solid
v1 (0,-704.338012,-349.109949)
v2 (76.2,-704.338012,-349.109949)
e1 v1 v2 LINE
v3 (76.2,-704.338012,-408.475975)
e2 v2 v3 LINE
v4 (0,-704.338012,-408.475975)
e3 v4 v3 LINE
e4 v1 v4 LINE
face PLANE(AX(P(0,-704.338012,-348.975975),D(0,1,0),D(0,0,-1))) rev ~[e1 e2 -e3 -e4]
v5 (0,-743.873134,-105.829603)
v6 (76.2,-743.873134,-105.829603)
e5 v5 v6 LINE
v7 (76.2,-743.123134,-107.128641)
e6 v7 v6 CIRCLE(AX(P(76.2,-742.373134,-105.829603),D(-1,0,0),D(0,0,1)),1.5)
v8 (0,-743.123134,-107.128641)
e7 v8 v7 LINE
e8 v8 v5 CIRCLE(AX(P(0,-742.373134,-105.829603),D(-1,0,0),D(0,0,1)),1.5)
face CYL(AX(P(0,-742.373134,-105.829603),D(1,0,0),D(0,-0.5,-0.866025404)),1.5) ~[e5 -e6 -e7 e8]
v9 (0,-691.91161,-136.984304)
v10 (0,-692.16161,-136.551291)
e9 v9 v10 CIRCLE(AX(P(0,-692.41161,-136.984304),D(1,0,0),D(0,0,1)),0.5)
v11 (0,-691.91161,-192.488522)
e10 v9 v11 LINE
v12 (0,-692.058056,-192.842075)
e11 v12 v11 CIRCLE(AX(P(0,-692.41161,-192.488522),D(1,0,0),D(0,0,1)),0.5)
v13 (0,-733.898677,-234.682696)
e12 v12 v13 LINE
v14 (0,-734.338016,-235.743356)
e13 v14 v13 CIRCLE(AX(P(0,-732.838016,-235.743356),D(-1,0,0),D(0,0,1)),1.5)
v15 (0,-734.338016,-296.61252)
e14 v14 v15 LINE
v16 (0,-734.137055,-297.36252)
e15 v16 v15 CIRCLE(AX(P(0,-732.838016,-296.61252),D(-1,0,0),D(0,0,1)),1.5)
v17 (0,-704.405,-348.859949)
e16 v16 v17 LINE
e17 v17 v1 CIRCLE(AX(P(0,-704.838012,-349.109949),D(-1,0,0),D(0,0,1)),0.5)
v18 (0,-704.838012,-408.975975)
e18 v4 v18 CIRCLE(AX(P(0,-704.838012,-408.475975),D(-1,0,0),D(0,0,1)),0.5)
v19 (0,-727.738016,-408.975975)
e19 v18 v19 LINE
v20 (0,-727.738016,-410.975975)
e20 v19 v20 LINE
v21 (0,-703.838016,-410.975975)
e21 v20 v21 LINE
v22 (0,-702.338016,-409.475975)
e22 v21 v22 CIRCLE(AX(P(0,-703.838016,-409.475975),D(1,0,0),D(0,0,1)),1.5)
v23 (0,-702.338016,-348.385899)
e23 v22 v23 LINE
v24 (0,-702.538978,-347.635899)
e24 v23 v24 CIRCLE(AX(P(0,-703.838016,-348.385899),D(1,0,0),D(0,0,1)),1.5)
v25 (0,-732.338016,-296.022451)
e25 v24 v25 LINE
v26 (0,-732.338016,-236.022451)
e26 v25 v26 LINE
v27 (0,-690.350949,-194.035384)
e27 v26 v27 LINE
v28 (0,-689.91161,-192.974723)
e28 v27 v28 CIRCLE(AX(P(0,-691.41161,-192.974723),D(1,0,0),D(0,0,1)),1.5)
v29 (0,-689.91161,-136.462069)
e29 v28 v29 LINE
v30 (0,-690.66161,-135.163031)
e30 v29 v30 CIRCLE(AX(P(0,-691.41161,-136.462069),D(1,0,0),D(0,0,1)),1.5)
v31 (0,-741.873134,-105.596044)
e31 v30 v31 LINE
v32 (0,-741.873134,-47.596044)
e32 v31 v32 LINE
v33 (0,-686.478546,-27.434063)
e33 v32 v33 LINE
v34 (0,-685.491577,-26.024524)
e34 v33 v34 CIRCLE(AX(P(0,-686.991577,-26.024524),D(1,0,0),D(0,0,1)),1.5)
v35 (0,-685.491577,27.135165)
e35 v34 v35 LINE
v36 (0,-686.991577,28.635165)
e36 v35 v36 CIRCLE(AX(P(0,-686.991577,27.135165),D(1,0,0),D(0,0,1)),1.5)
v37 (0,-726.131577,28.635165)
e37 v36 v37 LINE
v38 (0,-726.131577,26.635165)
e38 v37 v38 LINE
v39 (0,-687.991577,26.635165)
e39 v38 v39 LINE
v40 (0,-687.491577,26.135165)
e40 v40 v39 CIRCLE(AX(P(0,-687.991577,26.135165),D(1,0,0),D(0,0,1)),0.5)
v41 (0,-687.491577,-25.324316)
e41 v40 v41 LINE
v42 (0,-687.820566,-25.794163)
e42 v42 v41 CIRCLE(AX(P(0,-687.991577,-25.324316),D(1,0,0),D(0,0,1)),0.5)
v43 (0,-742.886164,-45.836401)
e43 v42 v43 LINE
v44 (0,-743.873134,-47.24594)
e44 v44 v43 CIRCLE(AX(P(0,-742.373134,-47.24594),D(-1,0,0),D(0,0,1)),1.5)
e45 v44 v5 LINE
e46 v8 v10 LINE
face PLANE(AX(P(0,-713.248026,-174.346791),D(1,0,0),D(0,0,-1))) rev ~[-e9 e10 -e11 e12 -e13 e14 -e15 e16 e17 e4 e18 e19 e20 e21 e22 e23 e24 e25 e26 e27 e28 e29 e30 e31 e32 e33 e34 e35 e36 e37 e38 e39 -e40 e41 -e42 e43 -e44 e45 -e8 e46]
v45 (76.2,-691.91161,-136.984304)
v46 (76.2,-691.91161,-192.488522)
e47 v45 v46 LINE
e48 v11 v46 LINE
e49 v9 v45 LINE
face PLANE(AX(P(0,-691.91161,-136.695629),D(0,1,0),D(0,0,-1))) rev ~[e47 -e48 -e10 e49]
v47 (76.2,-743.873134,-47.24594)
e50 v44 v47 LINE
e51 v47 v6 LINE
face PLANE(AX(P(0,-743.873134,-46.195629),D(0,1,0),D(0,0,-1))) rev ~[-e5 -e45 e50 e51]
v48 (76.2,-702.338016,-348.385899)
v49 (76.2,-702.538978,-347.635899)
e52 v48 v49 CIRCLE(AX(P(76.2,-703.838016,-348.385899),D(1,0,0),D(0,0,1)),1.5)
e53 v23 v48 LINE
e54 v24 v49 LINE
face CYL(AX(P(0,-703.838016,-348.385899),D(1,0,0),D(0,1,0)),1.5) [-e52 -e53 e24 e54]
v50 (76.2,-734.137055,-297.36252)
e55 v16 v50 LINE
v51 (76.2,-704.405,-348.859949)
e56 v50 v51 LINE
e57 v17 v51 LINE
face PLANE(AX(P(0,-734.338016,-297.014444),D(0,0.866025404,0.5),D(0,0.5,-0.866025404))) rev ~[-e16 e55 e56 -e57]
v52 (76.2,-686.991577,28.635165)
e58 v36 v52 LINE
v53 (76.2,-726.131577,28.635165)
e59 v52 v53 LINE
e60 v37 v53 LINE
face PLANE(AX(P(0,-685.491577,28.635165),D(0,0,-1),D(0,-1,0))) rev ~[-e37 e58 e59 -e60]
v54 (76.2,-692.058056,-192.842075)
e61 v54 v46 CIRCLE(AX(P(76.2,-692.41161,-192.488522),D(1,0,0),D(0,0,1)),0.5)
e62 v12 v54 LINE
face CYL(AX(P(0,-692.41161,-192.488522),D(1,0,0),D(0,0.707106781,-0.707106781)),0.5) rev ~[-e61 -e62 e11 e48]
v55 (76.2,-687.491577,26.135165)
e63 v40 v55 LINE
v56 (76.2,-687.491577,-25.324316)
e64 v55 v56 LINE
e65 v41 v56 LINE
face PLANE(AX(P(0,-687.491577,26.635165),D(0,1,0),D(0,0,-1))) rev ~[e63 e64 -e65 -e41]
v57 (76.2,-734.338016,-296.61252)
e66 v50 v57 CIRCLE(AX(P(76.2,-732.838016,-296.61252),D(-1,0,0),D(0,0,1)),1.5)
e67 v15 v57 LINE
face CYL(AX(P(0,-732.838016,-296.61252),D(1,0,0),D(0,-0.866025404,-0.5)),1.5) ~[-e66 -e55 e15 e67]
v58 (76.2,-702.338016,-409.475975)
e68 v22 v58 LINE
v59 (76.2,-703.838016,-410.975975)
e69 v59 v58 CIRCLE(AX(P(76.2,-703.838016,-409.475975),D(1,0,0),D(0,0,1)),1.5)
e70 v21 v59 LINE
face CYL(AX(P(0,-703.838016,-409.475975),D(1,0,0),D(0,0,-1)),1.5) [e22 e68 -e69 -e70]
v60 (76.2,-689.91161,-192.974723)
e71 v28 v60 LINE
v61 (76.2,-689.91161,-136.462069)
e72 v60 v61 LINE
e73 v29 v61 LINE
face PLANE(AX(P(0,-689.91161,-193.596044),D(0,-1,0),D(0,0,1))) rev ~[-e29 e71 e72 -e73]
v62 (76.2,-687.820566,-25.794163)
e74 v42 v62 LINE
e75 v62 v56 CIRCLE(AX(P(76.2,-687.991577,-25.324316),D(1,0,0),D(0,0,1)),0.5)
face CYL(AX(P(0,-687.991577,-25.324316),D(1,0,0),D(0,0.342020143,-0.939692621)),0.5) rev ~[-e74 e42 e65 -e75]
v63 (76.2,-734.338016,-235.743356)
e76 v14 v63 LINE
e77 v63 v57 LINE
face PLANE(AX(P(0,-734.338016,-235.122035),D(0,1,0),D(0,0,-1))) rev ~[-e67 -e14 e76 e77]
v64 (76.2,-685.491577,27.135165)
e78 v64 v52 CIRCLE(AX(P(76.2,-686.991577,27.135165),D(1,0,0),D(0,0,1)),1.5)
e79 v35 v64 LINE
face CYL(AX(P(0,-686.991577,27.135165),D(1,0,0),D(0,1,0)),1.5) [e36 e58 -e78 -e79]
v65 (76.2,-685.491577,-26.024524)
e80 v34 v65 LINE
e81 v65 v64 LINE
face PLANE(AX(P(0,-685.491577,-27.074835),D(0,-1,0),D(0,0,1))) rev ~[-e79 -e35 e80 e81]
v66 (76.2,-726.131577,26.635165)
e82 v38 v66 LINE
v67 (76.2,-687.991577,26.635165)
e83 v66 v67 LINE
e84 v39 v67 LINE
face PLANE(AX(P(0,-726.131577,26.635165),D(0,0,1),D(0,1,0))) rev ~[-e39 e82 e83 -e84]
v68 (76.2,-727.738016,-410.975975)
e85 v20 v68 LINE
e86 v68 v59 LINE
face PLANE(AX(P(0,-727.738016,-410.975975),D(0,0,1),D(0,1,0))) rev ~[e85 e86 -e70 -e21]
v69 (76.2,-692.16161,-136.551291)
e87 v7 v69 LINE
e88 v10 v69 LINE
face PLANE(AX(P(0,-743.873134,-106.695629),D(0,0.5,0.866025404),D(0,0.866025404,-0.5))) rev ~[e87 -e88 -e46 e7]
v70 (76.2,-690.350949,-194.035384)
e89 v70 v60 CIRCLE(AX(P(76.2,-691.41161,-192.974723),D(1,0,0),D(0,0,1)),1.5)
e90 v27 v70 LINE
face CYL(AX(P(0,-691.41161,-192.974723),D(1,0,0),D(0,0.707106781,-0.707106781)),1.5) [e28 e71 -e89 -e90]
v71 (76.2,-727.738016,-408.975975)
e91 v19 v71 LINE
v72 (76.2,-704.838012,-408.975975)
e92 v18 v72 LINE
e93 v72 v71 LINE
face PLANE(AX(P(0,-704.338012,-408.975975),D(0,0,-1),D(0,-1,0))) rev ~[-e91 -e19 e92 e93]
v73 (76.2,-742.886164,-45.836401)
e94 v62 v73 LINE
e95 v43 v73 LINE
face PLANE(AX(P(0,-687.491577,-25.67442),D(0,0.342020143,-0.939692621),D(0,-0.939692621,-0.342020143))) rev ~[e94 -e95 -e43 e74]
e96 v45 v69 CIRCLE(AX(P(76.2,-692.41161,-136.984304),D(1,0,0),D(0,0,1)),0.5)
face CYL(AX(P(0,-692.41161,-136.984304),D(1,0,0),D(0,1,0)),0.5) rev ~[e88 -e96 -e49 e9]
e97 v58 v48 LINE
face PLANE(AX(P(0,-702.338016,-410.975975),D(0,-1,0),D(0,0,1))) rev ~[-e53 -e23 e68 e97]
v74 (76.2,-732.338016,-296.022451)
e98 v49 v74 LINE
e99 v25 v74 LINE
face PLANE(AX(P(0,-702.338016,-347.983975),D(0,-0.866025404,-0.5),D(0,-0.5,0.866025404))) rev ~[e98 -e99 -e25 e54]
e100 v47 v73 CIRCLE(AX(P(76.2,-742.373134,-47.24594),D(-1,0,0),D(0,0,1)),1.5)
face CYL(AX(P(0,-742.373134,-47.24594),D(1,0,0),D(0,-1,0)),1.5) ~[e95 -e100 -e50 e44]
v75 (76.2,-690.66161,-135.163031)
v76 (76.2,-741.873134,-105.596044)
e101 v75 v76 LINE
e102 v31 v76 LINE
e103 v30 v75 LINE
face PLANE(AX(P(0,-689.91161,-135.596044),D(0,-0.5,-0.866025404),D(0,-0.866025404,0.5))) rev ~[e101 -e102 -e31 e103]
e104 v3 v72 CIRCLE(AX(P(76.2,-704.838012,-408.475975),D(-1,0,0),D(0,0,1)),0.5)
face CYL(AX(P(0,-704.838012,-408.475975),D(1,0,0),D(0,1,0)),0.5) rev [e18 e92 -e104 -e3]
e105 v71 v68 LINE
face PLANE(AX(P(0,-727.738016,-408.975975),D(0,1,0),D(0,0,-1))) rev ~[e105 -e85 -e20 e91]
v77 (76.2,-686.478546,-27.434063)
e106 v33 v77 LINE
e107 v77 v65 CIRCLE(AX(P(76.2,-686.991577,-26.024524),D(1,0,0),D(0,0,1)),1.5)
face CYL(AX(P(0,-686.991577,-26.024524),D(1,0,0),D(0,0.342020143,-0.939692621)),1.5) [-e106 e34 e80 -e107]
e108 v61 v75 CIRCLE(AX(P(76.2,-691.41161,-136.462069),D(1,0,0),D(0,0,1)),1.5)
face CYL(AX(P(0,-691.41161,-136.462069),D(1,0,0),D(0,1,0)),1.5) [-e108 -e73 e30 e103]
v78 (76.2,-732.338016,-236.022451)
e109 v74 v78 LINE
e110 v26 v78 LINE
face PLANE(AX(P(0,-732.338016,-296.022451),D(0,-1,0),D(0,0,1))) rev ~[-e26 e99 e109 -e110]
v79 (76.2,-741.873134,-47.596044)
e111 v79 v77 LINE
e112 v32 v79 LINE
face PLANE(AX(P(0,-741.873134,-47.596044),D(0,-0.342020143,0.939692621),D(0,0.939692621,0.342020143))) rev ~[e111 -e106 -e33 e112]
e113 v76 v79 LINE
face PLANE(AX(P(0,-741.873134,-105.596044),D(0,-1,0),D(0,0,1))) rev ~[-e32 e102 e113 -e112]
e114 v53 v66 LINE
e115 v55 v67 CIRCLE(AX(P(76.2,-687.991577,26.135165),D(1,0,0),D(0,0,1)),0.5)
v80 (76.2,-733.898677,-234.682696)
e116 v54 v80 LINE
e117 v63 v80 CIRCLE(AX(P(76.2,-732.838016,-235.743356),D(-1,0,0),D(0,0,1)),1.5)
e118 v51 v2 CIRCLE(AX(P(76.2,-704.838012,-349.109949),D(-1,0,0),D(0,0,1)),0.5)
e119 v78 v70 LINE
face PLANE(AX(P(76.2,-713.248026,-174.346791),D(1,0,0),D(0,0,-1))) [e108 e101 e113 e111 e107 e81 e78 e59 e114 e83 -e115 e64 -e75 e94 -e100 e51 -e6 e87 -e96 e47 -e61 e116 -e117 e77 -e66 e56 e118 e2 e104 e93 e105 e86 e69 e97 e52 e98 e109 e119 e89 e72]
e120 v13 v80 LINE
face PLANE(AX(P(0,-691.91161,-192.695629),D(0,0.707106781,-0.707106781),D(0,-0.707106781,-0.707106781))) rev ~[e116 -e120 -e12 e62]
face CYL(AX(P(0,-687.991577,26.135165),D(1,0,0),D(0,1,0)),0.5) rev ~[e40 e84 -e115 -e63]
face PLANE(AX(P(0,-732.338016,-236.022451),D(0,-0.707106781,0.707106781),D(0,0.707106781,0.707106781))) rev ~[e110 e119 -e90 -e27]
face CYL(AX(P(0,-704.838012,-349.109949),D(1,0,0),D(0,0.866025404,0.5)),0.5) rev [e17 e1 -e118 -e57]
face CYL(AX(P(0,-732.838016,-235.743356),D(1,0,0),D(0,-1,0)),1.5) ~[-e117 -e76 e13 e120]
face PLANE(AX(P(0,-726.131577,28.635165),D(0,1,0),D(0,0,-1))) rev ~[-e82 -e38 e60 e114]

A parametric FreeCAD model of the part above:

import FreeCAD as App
import Part
import Sketcher
Q = App.Units.Quantity


def edges_at(feature, points):
    """Names of the edges that pass closest to the given points."""
    edges = feature.Shape.Edges
    near = lambda p: min(range(len(edges)), key=lambda i: edges[i].distToShape(Part.Vertex(*p))[0])
    return sorted({f"Edge{near(p) + 1}" for p in points})

doc = App.newDocument("Part")
body = doc.addObject("PartDesign::Body", "Body")

# Sketch on YZ plane
sketch1 = body.newObject("Sketcher::SketchObject", "Sketch")
sketch1.AttachmentSupport = (doc.getObject("YZ_Plane"), [""])
sketch1.MapMode = "FlatFace"
sketch1.addGeometry([
    Part.LineSegment(App.Vector(-727.738016, -410.975975, 0), App.Vector(-702.338016, -410.975975, 0)),  # 0
    Part.LineSegment(App.Vector(-702.338016, -410.975975, 0), App.Vector(-702.338016, -347.983975, 0)),  # 1
    Part.LineSegment(App.Vector(-702.338016, -347.983975, 0), App.Vector(-732.338016, -296.022451, 0)),  # 2
    Part.LineSegment(App.Vector(-732.338016, -296.022451, 0), App.Vector(-732.338016, -236.022451, 0)),  # 3
    Part.LineSegment(App.Vector(-732.338016, -236.022451, 0), App.Vector(-689.91161, -193.596044, 0)),  # 4
    Part.LineSegment(App.Vector(-689.91161, -193.596044, 0), App.Vector(-689.91161, -135.596044, 0)),  # 5
    Part.LineSegment(App.Vector(-689.91161, -135.596044, 0), App.Vector(-741.873134, -105.596044, 0)),  # 6
    Part.LineSegment(App.Vector(-741.873134, -105.596044, 0), App.Vector(-741.873134, -47.596044, 0)),  # 7
    Part.LineSegment(App.Vector(-741.873134, -47.596044, 0), App.Vector(-685.491577, -27.074835, 0)),  # 8
    Part.LineSegment(App.Vector(-685.491577, -27.074835, 0), App.Vector(-685.491577, 28.635165, 0)),  # 9
    Part.LineSegment(App.Vector(-685.491577, 28.635165, 0), App.Vector(-726.131577, 28.635165, 0)),  # 10
    Part.LineSegment(App.Vector(-726.131577, 28.635165, 0), App.Vector(-726.131577, 26.635165, 0)),  # 11
    Part.LineSegment(App.Vector(-726.131577, 26.635165, 0), App.Vector(-687.491577, 26.635165, 0)),  # 12
    Part.LineSegment(App.Vector(-687.491577, 26.635165, 0), App.Vector(-687.491577, -25.67442, 0)),  # 13
    Part.LineSegment(App.Vector(-687.491577, -25.67442, 0), App.Vector(-743.873134, -46.195629, 0)),  # 14
    Part.LineSegment(App.Vector(-743.873134, -46.195629, 0), App.Vector(-743.873134, -106.695629, 0)),  # 15
    Part.LineSegment(App.Vector(-743.873134, -106.695629, 0), App.Vector(-691.91161, -136.695629, 0)),  # 16
    Part.LineSegment(App.Vector(-691.91161, -136.695629, 0), App.Vector(-691.91161, -192.695629, 0)),  # 17
    Part.LineSegment(App.Vector(-691.91161, -192.695629, 0), App.Vector(-734.338016, -235.122035, 0)),  # 18
    Part.LineSegment(App.Vector(-734.338016, -235.122035, 0), App.Vector(-734.338016, -297.014444, 0)),  # 19
    Part.LineSegment(App.Vector(-734.338016, -297.014444, 0), App.Vector(-704.338012, -348.975975, 0)),  # 20
    Part.LineSegment(App.Vector(-704.338012, -348.975975, 0), App.Vector(-704.338012, -408.975975, 0)),  # 21
    Part.LineSegment(App.Vector(-704.338012, -408.975975, 0), App.Vector(-727.738016, -408.975975, 0)),  # 22
    Part.LineSegment(App.Vector(-727.738016, -408.975975, 0), App.Vector(-727.738016, -410.975975, 0)),  # 23
], False)
sketch1.addConstraint([
    Sketcher.Constraint("Coincident", 0, 2, 1, 1),
    Sketcher.Constraint("Coincident", 1, 2, 2, 1),
    Sketcher.Constraint("Coincident", 2, 2, 3, 1),
    Sketcher.Constraint("Coincident", 3, 2, 4, 1),
    Sketcher.Constraint("Coincident", 4, 2, 5, 1),
    Sketcher.Constraint("Coincident", 5, 2, 6, 1),
    Sketcher.Constraint("Coincident", 6, 2, 7, 1),
    Sketcher.Constraint("Coincident", 7, 2, 8, 1),
    Sketcher.Constraint("Coincident", 8, 2, 9, 1),
    Sketcher.Constraint("Coincident", 9, 2, 10, 1),
    Sketcher.Constraint("Coincident", 10, 2, 11, 1),
    Sketcher.Constraint("Coincident", 11, 2, 12, 1),
    Sketcher.Constraint("Coincident", 12, 2, 13, 1),
    Sketcher.Constraint("Coincident", 13, 2, 14, 1),
    Sketcher.Constraint("Coincident", 14, 2, 15, 1),
    Sketcher.Constraint("Coincident", 15, 2, 16, 1),
    Sketcher.Constraint("Coincident", 16, 2, 17, 1),
    Sketcher.Constraint("Coincident", 17, 2, 18, 1),
    Sketcher.Constraint("Coincident", 18, 2, 19, 1),
    Sketcher.Constraint("Coincident", 19, 2, 20, 1),
    Sketcher.Constraint("Coincident", 20, 2, 21, 1),
    Sketcher.Constraint("Coincident", 21, 2, 22, 1),
    Sketcher.Constraint("Coincident", 22, 2, 23, 1),
    Sketcher.Constraint("Coincident", 23, 2, 0, 1),
    Sketcher.Constraint("Horizontal", 0),
    Sketcher.Constraint("Vertical", 1),
    Sketcher.Constraint("Vertical", 3),
    Sketcher.Constraint("Vertical", 5),
    Sketcher.Constraint("Vertical", 7),
    Sketcher.Constraint("Vertical", 9),
    Sketcher.Constraint("Horizontal", 10),
    Sketcher.Constraint("Vertical", 11),
    Sketcher.Constraint("Horizontal", 12),
    Sketcher.Constraint("Vertical", 13),
    Sketcher.Constraint("Vertical", 15),
    Sketcher.Constraint("Vertical", 17),
    Sketcher.Constraint("Vertical", 19),
    Sketcher.Constraint("Vertical", 21),
    Sketcher.Constraint("Horizontal", 22),
    Sketcher.Constraint("Vertical", 23),
    Sketcher.Constraint("Parallel", 8, 14),
    Sketcher.Constraint("Parallel", 6, 16),
    Sketcher.Constraint("Parallel", 4, 18),
    Sketcher.Constraint("Parallel", 2, 20),
    Sketcher.Constraint("Equal", 5, 7),
    Sketcher.Constraint("Equal", 3, 21),
    Sketcher.Constraint("Equal", 11, 23),
    Sketcher.Constraint("Equal", 2, 4),
    Sketcher.Constraint("Equal", 4, 6),
    Sketcher.Constraint("Equal", 6, 8),
    Sketcher.Constraint("Equal", 8, 14),
    Sketcher.Constraint("Equal", 14, 16),
    Sketcher.Constraint("Equal", 16, 18),
    Sketcher.Constraint("DistanceY", 3, 1, 3, 2, Q("60 mm")),
    Sketcher.Constraint("DistanceY", 5, 1, 5, 2, Q("58 mm")),
    Sketcher.Constraint("DistanceY", 11, 2, 11, 1, Q("2 mm")),
    Sketcher.Constraint("DistanceY", 17, 2, 17, 1, Q("56 mm")),
    Sketcher.Constraint("Angle", 2, Q("120 deg")),
    Sketcher.Constraint("Angle", 4, Q("45 deg")),
    Sketcher.Constraint("Angle", 6, Q("150 deg")),
    Sketcher.Constraint("Angle", 8, Q("20 deg")),
    Sketcher.Constraint("Distance", 2, Q("60 mm")),
    Sketcher.Constraint("DistanceX", 0, 1, 0, 2, Q("25.4 mm")),
    Sketcher.Constraint("DistanceY", 15, 2, 15, 1, Q("60.5 mm")),
    Sketcher.Constraint("DistanceX", 12, 2, 9, 2, Q("2 mm")),
    Sketcher.Constraint("DistanceX", 10, 2, 10, 1, Q("40.64 mm")),
    Sketcher.Constraint("DistanceY", 9, 1, 9, 2, Q("55.71 mm")),
    Sketcher.Constraint("DistanceY", 1, 1, 1, 2, Q("62.992 mm")),
    Sketcher.Constraint("DistanceY", 19, 2, 19, 1, Q("61.892408 mm")),
    Sketcher.Constraint("DistanceY", 19, 2, 4, 2, Q("103.4184 mm")),
    Sketcher.Constraint("DistanceY", 2, 2, -1, 1, Q("296.022451 mm")),
    Sketcher.Constraint("DistanceX", 4, 2, -1, 1, Q("689.91161 mm")),
])
pad1 = body.newObject("PartDesign::Pad", "Pad")
pad1.Profile = sketch1
pad1.Length = 76.2
doc.recompute()

fillet = body.newObject("PartDesign::Fillet", "Fillet")
fillet.Base = (pad1, edges_at(pad1, [
    (38.1, -685.492, 28.635),
    (38.1, -685.492, -27.075),
    (38.1, -689.912, -135.596),
    (38.1, -689.912, -193.596),
    (38.1, -702.338, -347.984),
    (38.1, -702.338, -410.976),
]))
fillet.Radius = 1.5
doc.recompute()

fillet2 = body.newObject("PartDesign::Fillet", "Fillet001")
fillet2.Base = (fillet, edges_at(fillet, [
    (38.1, -734.338, -297.014),
    (38.1, -734.338, -235.122),
    (38.1, -743.873, -106.696),
    (38.1, -743.873, -46.196),
]))
fillet2.Radius = 1.5
doc.recompute()

fillet3 = body.newObject("PartDesign::Fillet", "Fillet002")
fillet3.Base = (fillet2, edges_at(fillet2, [
    (38.1, -704.338, -408.976),
    (38.1, -704.338, -348.976),
    (38.1, -691.912, -192.696),
    (38.1, -691.912, -136.696),
    (38.1, -687.492, -25.674),
    (38.1, -687.492, 26.635),
]))
fillet3.Radius = 0.5

doc.recompute()
